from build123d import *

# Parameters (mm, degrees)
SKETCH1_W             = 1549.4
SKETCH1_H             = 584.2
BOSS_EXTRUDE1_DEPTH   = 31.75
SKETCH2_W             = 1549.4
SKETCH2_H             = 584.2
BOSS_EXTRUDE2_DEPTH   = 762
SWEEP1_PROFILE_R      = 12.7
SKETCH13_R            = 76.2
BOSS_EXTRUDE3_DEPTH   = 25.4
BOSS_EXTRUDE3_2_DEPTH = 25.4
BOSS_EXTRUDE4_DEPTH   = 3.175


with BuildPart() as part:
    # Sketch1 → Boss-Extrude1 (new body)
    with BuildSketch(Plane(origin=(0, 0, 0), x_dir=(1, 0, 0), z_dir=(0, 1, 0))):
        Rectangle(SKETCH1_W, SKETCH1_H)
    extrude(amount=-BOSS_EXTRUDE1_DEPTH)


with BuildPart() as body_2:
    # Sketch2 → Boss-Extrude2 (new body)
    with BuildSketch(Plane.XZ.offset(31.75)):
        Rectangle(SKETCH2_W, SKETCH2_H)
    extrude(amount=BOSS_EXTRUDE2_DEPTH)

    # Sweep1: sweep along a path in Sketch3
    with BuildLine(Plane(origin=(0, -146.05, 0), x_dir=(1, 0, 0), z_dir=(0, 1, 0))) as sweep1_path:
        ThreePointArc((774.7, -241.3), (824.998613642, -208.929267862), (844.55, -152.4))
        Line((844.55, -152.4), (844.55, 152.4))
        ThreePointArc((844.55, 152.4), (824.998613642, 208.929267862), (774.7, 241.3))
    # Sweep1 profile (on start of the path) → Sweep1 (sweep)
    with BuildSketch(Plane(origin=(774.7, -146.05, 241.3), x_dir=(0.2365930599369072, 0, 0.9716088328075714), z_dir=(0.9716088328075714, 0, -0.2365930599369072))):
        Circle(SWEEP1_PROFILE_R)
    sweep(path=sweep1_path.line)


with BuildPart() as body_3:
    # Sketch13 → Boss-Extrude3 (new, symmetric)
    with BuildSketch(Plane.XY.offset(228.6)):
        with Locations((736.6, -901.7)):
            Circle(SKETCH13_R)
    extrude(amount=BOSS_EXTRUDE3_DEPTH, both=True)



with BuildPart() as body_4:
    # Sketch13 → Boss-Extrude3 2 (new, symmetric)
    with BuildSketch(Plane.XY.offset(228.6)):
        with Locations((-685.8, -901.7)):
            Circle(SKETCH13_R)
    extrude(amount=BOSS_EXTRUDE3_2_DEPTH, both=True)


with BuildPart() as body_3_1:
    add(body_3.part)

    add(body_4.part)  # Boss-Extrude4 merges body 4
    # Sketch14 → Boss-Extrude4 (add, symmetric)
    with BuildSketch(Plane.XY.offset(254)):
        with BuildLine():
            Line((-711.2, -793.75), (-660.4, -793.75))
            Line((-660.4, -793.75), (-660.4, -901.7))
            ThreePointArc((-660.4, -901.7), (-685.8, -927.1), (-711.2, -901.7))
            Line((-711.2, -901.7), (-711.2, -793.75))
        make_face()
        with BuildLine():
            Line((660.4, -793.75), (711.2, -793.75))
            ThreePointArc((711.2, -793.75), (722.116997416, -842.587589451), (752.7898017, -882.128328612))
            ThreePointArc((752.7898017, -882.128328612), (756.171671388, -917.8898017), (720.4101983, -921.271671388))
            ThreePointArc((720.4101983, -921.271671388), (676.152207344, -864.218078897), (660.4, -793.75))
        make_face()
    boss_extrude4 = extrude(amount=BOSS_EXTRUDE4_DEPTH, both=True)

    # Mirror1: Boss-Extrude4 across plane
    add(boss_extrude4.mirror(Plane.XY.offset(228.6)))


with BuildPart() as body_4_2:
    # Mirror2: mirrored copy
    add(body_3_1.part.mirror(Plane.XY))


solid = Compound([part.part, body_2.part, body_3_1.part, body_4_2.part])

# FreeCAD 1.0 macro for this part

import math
import FreeCAD as App
import Part
import Sketcher
Q = App.Units.Quantity

doc = App.newDocument("Part")
body = doc.addObject("PartDesign::Body", "Body")

sketch1 = doc.addObject("Sketcher::SketchObject", "Sketch")
body.addObject(sketch1)
sketch1.AttachmentSupport = (doc.XZ_Plane, [""])
sketch1.MapMode = "FlatFace"
sketch1.addGeometry(Part.LineSegment(App.Vector(-775, -292, 0), App.Vector(-775, 292, 0)), False)
sketch1.addGeometry(Part.LineSegment(App.Vector(-775, 292, 0), App.Vector(775, 292, 0)), False)
sketch1.addGeometry(Part.LineSegment(App.Vector(775, 292, 0), App.Vector(775, -292, 0)), False)
sketch1.addGeometry(Part.LineSegment(App.Vector(775, -292, 0), App.Vector(-775, -292, 0)), False)
sketch1.addConstraint(Sketcher.Constraint("Coincident", 0, 2, 1, 1))
sketch1.addConstraint(Sketcher.Constraint("Coincident", 1, 2, 2, 1))
sketch1.addConstraint(Sketcher.Constraint("Coincident", 2, 2, 3, 1))
sketch1.addConstraint(Sketcher.Constraint("Coincident", 3, 2, 0, 1))
sketch1.addConstraint(Sketcher.Constraint("Vertical", 0))
sketch1.addConstraint(Sketcher.Constraint("Horizontal", 1))
sketch1.addConstraint(Sketcher.Constraint("Vertical", 2))
sketch1.addConstraint(Sketcher.Constraint("Horizontal", 3))
sketch1.addConstraint(Sketcher.Constraint("Symmetric", 0, 2, 2, 2, -1, 1))
sketch1.addConstraint(Sketcher.Constraint("DistanceX", 1, 1, 1, 2, Q("61 in")))
sketch1.addConstraint(Sketcher.Constraint("DistanceY", 0, 1, 0, 2, Q("23 in")))
pad1 = doc.addObject("PartDesign::Pad", "Pad")
body.addObject(pad1)
pad1.Profile = sketch1
pad1.Length = Q("1.25 in")
body2 = doc.addObject("PartDesign::Body", "Body001")

sketch2 = doc.addObject("Sketcher::SketchObject", "Sketch001")
body2.addObject(sketch2)
sketch2.AttachmentSupport = (doc.getObject("XZ_Plane001"), [""])
sketch2.MapMode = "FlatFace"
sketch2.AttachmentOffset = App.Placement(App.Vector(0, 0, 1.25 * 25.4), App.Rotation())
sketch2.addGeometry(Part.LineSegment(App.Vector(-775, 292, 0), App.Vector(-775, -292, 0)), False)
sketch2.addGeometry(Part.LineSegment(App.Vector(-775, -292, 0), App.Vector(775, -292, 0)), False)
sketch2.addGeometry(Part.LineSegment(App.Vector(775, -292, 0), App.Vector(775, 292, 0)), False)
sketch2.addGeometry(Part.LineSegment(App.Vector(775, 292, 0), App.Vector(-775, 292, 0)), False)
sketch2.addConstraint(Sketcher.Constraint("Coincident", 0, 2, 1, 1))
sketch2.addConstraint(Sketcher.Constraint("Coincident", 1, 2, 2, 1))
sketch2.addConstraint(Sketcher.Constraint("Coincident", 2, 2, 3, 1))
sketch2.addConstraint(Sketcher.Constraint("Coincident", 3, 2, 0, 1))
sketch2.addConstraint(Sketcher.Constraint("Vertical", 0))
sketch2.addConstraint(Sketcher.Constraint("Horizontal", 1))
sketch2.addConstraint(Sketcher.Constraint("Vertical", 2))
sketch2.addConstraint(Sketcher.Constraint("Horizontal", 3))
sketch2.addConstraint(Sketcher.Constraint("Symmetric", 0, 2, 2, 2, -1, 1))
sketch2.addConstraint(Sketcher.Constraint("DistanceX", 1, 1, 1, 2, Q("61 in")))
sketch2.addConstraint(Sketcher.Constraint("DistanceY", 0, 2, 0, 1, Q("23 in")))
pad2 = doc.addObject("PartDesign::Pad", "Pad001")
body2.addObject(pad2)
pad2.Profile = sketch2
pad2.Length = Q("30 in")

sketch3 = doc.addObject("Sketcher::SketchObject", "Sketch002")
body2.addObject(sketch3)
sketch3.Placement = App.Placement(App.Vector(774.7, -146.05, 241.3), App.Rotation(App.Vector(0.23659306, 0, 0.971608833), App.Vector(0, -1, 0), App.Vector(0.971608833, 0, -0.23659306), "ZXY"))
sketch3.addGeometry(Part.Circle(App.Vector(0, 0, 0), App.Vector(0, 0, 1), 13), False)
sketch3.addConstraint(Sketcher.Constraint("Coincident", 0, 3, -1, 1))
sketch3.addConstraint(Sketcher.Constraint("Diameter", 0, Q("1 in")))

sketch4 = doc.addObject("Sketcher::SketchObject", "Sketch003")
body2.addObject(sketch4)
sketch4.AttachmentSupport = (doc.getObject("XZ_Plane001"), [""])
sketch4.MapMode = "FlatFace"
sketch4.AttachmentOffset = App.Placement(App.Vector(0, 0, 5.75 * 25.4), App.Rotation())
sketch4.addGeometry(Part.ArcOfCircle(Part.Circle(App.Vector(753, 152, 0), App.Vector(0, 0, 1), 91), math.radians(0), math.radians(76)), False)
sketch4.addGeometry(Part.LineSegment(App.Vector(845, 152, 0), App.Vector(845, -152, 0)), False)
sketch4.addGeometry(Part.ArcOfCircle(Part.Circle(App.Vector(753, -152, 0), App.Vector(0, 0, 1), 91), math.radians(-76), math.radians(0)), False)
sketch4.addConstraint(Sketcher.Constraint("Tangent", 0, 1, 1, 1))
sketch4.addConstraint(Sketcher.Constraint("Tangent", 1, 2, 2, 2))
sketch4.addConstraint(Sketcher.Constraint("Vertical", 1))
sketch4.addConstraint(Sketcher.Constraint("Equal", 0, 2))
sketch4.addConstraint(Sketcher.Constraint("Symmetric", 0, 2, 2, 1, -1))
sketch4.addConstraint(Sketcher.Constraint("DistanceY", 1, 2, 1, 1, Q("12 in")))
sketch4.addConstraint(Sketcher.Constraint("DistanceY", 2, 1, 0, 2, Q("19 in")))
sketch4.addConstraint(Sketcher.Constraint("DistanceX", -1, 1, 0, 2, Q("30.5 in")))
sketch4.addConstraint(Sketcher.Constraint("DistanceX", -1, 1, 0, 1, Q("33.25 in")))
doc.recompute()

additivepipe = doc.addObject("PartDesign::AdditivePipe", "AdditivePipe")
body2.addObject(additivepipe)
additivepipe.Profile = sketch3
additivepipe.Spine = (sketch4, ["Edge1", "Edge2", "Edge3"])
body3 = doc.addObject("PartDesign::Body", "Body002")

sketch5 = doc.addObject("Sketcher::SketchObject", "Sketch004")
body3.addObject(sketch5)
sketch5.AttachmentSupport = (doc.getObject("XY_Plane002"), [""])
sketch5.MapMode = "FlatFace"
sketch5.AttachmentOffset = App.Placement(App.Vector(0, 0, 9 * 25.4), App.Rotation())
sketch5.addGeometry(Part.Circle(App.Vector(737, -902, 0), App.Vector(0, 0, 1), 76), False)
sketch5.addConstraint(Sketcher.Constraint("Diameter", 0, Q("6 in")))
sketch5.addConstraint(Sketcher.Constraint("DistanceX", -1, 1, 0, 3, Q("29 in")))
sketch5.addConstraint(Sketcher.Constraint("DistanceY", 0, 3, -1, 1, Q("35.5 in")))
pad3 = doc.addObject("PartDesign::Pad", "Pad002")
body3.addObject(pad3)
pad3.Profile = sketch5
pad3.Length = Q("2 in")
pad3.Midplane = True
body4 = doc.addObject("PartDesign::Body", "Body003")

sketch6 = doc.addObject("Sketcher::SketchObject", "Sketch005")
body4.addObject(sketch6)
sketch6.AttachmentSupport = (doc.getObject("XY_Plane003"), [""])
sketch6.MapMode = "FlatFace"
sketch6.AttachmentOffset = App.Placement(App.Vector(0, 0, 9 * 25.4), App.Rotation())
sketch6.addGeometry(Part.Circle(App.Vector(-686, -902, 0), App.Vector(0, 0, 1), 76), False)
sketch6.addConstraint(Sketcher.Constraint("Diameter", 0, Q("6 in")))
sketch6.addConstraint(Sketcher.Constraint("DistanceX", 0, 3, -1, 1, Q("27 in")))
sketch6.addConstraint(Sketcher.Constraint("DistanceY", 0, 3, -1, 1, Q("35.5 in")))
pad4 = doc.addObject("PartDesign::Pad", "Pad003")
body4.addObject(pad4)
pad4.Profile = sketch6
pad4.Length = Q("2 in")
pad4.Midplane = True
body3.AllowCompound = True
doc.recompute()

boolean = doc.addObject("PartDesign::Boolean", "Boolean")
body3.addObject(boolean)
boolean.Type = "Fuse"
boolean.addObjects([body4])

sketch7 = doc.addObject("Sketcher::SketchObject", "Sketch006")
body3.addObject(sketch7)
sketch7.AttachmentSupport = (doc.getObject("XY_Plane002"), [""])
sketch7.MapMode = "FlatFace"
sketch7.AttachmentOffset = App.Placement(App.Vector(0, 0, 10 * 25.4), App.Rotation())
sketch7.addGeometry(Part.LineSegment(App.Vector(-660, -794, 0), App.Vector(-711, -794, 0)), False)
sketch7.addGeometry(Part.LineSegment(App.Vector(-711, -794, 0), App.Vector(-711, -902, 0)), False)
sketch7.addGeometry(Part.ArcOfCircle(Part.Circle(App.Vector(-686, -902, 0), App.Vector(0, 0, 1), 25), math.radians(180), math.radians(360)), False)
sketch7.addGeometry(Part.LineSegment(App.Vector(-660, -902, 0), App.Vector(-660, -794, 0)), False)
sketch7.addGeometry(Part.LineSegment(App.Vector(711, -794, 0), App.Vector(660, -794, 0)), False)
sketch7.addGeometry(Part.ArcOfCircle(Part.Circle(App.Vector(826, -794, 0), App.Vector(0, 0, 1), 165), math.radians(180), math.radians(230)), False)
sketch7.addGeometry(Part.ArcOfCircle(Part.Circle(App.Vector(737, -902, 0), App.Vector(0, 0, 1), 25), math.radians(-130), math.radians(50)), False)
sketch7.addGeometry(Part.ArcOfCircle(Part.Circle(App.Vector(826, -794, 0), App.Vector(0, 0, 1), 115), math.radians(180), math.radians(230)), False)
sketch7.addConstraint(Sketcher.Constraint("Coincident", 0, 2, 1, 1))
sketch7.addConstraint(Sketcher.Constraint("Tangent", 1, 2, 2, 1))
sketch7.addConstraint(Sketcher.Constraint("Tangent", 2, 2, 3, 1))
sketch7.addConstraint(Sketcher.Constraint("Coincident", 3, 2, 0, 1))
sketch7.addConstraint(Sketcher.Constraint("Coincident", 4, 2, 5, 1))
sketch7.addConstraint(Sketcher.Constraint("Tangent", 5, 2, 6, 1))
sketch7.addConstraint(Sketcher.Constraint("Tangent", 6, 2, 7, 2))
sketch7.addConstraint(Sketcher.Constraint("Coincident", 7, 1, 4, 1))
sketch7.addConstraint(Sketcher.Constraint("Horizontal", 0))
sketch7.addConstraint(Sketcher.Constraint("Vertical", 1))
sketch7.addConstraint(Sketcher.Constraint("Vertical", 3))
sketch7.addConstraint(Sketcher.Constraint("Horizontal", 4))
sketch7.addConstraint(Sketcher.Constraint("Coincident", 7, 3, 5, 3))
sketch7.addConstraint(Sketcher.Constraint("Equal", 2, 6))
sketch7.addConstraint(Sketcher.Constraint("Symmetric", 3, 2, 4, 2, -2))
sketch7.addConstraint(Sketcher.Constraint("Horizontal", 2, 3, 6, 3))
sketch7.addConstraint(Sketcher.Constraint("Horizontal", 7, 3, 0, 2))
sketch7.addConstraint(Sketcher.Constraint("Radius", 2, Q("1 in")))
sketch7.addConstraint(Sketcher.Constraint("DistanceX", 2, 3, -1, 1, Q("27 in")))
sketch7.addConstraint(Sketcher.Constraint("DistanceX", -1, 1, 6, 3, Q("29 in")))
sketch7.addConstraint(Sketcher.Constraint("Radius", 5, Q("6.515625 in")))
sketch7.addConstraint(Sketcher.Constraint("DistanceY", 2, 3, -1, 1, Q("35.5 in")))
pad5 = doc.addObject("PartDesign::Pad", "Pad004")
body3.addObject(pad5)
pad5.Profile = sketch7
pad5.Length = Q("0.25 in")
pad5.Midplane = True
doc.recompute()

datumplane = doc.addObject("PartDesign::Plane", "DatumPlane")
body3.addObject(datumplane)
datumplane.AttachmentSupport = (doc.getObject("XY_Plane002"), [""])
datumplane.MapMode = "FlatFace"
datumplane.AttachmentOffset = App.Placement(App.Vector(0, 0, 9 * 25.4), App.Rotation())
mirrored = doc.addObject("PartDesign::Mirrored", "Mirrored")
body3.addObject(mirrored)
mirrored.Originals = [pad5]
mirrored.MirrorPlane = (datumplane, [""])
body3.Tip = mirrored
body5 = doc.addObject("PartDesign::Body", "Body004")
body5.AllowCompound = True
doc.recompute()

mirroring = doc.addObject("Part::Mirroring", "Mirroring")
mirroring.Source = body3
mirroring.Base = App.Vector(0, 0, 0)
mirroring.Normal = App.Vector(0, 0, 1)
body5.BaseFeature = mirroring
doc.recompute()
mirroring.Visibility = False

doc.recompute()
